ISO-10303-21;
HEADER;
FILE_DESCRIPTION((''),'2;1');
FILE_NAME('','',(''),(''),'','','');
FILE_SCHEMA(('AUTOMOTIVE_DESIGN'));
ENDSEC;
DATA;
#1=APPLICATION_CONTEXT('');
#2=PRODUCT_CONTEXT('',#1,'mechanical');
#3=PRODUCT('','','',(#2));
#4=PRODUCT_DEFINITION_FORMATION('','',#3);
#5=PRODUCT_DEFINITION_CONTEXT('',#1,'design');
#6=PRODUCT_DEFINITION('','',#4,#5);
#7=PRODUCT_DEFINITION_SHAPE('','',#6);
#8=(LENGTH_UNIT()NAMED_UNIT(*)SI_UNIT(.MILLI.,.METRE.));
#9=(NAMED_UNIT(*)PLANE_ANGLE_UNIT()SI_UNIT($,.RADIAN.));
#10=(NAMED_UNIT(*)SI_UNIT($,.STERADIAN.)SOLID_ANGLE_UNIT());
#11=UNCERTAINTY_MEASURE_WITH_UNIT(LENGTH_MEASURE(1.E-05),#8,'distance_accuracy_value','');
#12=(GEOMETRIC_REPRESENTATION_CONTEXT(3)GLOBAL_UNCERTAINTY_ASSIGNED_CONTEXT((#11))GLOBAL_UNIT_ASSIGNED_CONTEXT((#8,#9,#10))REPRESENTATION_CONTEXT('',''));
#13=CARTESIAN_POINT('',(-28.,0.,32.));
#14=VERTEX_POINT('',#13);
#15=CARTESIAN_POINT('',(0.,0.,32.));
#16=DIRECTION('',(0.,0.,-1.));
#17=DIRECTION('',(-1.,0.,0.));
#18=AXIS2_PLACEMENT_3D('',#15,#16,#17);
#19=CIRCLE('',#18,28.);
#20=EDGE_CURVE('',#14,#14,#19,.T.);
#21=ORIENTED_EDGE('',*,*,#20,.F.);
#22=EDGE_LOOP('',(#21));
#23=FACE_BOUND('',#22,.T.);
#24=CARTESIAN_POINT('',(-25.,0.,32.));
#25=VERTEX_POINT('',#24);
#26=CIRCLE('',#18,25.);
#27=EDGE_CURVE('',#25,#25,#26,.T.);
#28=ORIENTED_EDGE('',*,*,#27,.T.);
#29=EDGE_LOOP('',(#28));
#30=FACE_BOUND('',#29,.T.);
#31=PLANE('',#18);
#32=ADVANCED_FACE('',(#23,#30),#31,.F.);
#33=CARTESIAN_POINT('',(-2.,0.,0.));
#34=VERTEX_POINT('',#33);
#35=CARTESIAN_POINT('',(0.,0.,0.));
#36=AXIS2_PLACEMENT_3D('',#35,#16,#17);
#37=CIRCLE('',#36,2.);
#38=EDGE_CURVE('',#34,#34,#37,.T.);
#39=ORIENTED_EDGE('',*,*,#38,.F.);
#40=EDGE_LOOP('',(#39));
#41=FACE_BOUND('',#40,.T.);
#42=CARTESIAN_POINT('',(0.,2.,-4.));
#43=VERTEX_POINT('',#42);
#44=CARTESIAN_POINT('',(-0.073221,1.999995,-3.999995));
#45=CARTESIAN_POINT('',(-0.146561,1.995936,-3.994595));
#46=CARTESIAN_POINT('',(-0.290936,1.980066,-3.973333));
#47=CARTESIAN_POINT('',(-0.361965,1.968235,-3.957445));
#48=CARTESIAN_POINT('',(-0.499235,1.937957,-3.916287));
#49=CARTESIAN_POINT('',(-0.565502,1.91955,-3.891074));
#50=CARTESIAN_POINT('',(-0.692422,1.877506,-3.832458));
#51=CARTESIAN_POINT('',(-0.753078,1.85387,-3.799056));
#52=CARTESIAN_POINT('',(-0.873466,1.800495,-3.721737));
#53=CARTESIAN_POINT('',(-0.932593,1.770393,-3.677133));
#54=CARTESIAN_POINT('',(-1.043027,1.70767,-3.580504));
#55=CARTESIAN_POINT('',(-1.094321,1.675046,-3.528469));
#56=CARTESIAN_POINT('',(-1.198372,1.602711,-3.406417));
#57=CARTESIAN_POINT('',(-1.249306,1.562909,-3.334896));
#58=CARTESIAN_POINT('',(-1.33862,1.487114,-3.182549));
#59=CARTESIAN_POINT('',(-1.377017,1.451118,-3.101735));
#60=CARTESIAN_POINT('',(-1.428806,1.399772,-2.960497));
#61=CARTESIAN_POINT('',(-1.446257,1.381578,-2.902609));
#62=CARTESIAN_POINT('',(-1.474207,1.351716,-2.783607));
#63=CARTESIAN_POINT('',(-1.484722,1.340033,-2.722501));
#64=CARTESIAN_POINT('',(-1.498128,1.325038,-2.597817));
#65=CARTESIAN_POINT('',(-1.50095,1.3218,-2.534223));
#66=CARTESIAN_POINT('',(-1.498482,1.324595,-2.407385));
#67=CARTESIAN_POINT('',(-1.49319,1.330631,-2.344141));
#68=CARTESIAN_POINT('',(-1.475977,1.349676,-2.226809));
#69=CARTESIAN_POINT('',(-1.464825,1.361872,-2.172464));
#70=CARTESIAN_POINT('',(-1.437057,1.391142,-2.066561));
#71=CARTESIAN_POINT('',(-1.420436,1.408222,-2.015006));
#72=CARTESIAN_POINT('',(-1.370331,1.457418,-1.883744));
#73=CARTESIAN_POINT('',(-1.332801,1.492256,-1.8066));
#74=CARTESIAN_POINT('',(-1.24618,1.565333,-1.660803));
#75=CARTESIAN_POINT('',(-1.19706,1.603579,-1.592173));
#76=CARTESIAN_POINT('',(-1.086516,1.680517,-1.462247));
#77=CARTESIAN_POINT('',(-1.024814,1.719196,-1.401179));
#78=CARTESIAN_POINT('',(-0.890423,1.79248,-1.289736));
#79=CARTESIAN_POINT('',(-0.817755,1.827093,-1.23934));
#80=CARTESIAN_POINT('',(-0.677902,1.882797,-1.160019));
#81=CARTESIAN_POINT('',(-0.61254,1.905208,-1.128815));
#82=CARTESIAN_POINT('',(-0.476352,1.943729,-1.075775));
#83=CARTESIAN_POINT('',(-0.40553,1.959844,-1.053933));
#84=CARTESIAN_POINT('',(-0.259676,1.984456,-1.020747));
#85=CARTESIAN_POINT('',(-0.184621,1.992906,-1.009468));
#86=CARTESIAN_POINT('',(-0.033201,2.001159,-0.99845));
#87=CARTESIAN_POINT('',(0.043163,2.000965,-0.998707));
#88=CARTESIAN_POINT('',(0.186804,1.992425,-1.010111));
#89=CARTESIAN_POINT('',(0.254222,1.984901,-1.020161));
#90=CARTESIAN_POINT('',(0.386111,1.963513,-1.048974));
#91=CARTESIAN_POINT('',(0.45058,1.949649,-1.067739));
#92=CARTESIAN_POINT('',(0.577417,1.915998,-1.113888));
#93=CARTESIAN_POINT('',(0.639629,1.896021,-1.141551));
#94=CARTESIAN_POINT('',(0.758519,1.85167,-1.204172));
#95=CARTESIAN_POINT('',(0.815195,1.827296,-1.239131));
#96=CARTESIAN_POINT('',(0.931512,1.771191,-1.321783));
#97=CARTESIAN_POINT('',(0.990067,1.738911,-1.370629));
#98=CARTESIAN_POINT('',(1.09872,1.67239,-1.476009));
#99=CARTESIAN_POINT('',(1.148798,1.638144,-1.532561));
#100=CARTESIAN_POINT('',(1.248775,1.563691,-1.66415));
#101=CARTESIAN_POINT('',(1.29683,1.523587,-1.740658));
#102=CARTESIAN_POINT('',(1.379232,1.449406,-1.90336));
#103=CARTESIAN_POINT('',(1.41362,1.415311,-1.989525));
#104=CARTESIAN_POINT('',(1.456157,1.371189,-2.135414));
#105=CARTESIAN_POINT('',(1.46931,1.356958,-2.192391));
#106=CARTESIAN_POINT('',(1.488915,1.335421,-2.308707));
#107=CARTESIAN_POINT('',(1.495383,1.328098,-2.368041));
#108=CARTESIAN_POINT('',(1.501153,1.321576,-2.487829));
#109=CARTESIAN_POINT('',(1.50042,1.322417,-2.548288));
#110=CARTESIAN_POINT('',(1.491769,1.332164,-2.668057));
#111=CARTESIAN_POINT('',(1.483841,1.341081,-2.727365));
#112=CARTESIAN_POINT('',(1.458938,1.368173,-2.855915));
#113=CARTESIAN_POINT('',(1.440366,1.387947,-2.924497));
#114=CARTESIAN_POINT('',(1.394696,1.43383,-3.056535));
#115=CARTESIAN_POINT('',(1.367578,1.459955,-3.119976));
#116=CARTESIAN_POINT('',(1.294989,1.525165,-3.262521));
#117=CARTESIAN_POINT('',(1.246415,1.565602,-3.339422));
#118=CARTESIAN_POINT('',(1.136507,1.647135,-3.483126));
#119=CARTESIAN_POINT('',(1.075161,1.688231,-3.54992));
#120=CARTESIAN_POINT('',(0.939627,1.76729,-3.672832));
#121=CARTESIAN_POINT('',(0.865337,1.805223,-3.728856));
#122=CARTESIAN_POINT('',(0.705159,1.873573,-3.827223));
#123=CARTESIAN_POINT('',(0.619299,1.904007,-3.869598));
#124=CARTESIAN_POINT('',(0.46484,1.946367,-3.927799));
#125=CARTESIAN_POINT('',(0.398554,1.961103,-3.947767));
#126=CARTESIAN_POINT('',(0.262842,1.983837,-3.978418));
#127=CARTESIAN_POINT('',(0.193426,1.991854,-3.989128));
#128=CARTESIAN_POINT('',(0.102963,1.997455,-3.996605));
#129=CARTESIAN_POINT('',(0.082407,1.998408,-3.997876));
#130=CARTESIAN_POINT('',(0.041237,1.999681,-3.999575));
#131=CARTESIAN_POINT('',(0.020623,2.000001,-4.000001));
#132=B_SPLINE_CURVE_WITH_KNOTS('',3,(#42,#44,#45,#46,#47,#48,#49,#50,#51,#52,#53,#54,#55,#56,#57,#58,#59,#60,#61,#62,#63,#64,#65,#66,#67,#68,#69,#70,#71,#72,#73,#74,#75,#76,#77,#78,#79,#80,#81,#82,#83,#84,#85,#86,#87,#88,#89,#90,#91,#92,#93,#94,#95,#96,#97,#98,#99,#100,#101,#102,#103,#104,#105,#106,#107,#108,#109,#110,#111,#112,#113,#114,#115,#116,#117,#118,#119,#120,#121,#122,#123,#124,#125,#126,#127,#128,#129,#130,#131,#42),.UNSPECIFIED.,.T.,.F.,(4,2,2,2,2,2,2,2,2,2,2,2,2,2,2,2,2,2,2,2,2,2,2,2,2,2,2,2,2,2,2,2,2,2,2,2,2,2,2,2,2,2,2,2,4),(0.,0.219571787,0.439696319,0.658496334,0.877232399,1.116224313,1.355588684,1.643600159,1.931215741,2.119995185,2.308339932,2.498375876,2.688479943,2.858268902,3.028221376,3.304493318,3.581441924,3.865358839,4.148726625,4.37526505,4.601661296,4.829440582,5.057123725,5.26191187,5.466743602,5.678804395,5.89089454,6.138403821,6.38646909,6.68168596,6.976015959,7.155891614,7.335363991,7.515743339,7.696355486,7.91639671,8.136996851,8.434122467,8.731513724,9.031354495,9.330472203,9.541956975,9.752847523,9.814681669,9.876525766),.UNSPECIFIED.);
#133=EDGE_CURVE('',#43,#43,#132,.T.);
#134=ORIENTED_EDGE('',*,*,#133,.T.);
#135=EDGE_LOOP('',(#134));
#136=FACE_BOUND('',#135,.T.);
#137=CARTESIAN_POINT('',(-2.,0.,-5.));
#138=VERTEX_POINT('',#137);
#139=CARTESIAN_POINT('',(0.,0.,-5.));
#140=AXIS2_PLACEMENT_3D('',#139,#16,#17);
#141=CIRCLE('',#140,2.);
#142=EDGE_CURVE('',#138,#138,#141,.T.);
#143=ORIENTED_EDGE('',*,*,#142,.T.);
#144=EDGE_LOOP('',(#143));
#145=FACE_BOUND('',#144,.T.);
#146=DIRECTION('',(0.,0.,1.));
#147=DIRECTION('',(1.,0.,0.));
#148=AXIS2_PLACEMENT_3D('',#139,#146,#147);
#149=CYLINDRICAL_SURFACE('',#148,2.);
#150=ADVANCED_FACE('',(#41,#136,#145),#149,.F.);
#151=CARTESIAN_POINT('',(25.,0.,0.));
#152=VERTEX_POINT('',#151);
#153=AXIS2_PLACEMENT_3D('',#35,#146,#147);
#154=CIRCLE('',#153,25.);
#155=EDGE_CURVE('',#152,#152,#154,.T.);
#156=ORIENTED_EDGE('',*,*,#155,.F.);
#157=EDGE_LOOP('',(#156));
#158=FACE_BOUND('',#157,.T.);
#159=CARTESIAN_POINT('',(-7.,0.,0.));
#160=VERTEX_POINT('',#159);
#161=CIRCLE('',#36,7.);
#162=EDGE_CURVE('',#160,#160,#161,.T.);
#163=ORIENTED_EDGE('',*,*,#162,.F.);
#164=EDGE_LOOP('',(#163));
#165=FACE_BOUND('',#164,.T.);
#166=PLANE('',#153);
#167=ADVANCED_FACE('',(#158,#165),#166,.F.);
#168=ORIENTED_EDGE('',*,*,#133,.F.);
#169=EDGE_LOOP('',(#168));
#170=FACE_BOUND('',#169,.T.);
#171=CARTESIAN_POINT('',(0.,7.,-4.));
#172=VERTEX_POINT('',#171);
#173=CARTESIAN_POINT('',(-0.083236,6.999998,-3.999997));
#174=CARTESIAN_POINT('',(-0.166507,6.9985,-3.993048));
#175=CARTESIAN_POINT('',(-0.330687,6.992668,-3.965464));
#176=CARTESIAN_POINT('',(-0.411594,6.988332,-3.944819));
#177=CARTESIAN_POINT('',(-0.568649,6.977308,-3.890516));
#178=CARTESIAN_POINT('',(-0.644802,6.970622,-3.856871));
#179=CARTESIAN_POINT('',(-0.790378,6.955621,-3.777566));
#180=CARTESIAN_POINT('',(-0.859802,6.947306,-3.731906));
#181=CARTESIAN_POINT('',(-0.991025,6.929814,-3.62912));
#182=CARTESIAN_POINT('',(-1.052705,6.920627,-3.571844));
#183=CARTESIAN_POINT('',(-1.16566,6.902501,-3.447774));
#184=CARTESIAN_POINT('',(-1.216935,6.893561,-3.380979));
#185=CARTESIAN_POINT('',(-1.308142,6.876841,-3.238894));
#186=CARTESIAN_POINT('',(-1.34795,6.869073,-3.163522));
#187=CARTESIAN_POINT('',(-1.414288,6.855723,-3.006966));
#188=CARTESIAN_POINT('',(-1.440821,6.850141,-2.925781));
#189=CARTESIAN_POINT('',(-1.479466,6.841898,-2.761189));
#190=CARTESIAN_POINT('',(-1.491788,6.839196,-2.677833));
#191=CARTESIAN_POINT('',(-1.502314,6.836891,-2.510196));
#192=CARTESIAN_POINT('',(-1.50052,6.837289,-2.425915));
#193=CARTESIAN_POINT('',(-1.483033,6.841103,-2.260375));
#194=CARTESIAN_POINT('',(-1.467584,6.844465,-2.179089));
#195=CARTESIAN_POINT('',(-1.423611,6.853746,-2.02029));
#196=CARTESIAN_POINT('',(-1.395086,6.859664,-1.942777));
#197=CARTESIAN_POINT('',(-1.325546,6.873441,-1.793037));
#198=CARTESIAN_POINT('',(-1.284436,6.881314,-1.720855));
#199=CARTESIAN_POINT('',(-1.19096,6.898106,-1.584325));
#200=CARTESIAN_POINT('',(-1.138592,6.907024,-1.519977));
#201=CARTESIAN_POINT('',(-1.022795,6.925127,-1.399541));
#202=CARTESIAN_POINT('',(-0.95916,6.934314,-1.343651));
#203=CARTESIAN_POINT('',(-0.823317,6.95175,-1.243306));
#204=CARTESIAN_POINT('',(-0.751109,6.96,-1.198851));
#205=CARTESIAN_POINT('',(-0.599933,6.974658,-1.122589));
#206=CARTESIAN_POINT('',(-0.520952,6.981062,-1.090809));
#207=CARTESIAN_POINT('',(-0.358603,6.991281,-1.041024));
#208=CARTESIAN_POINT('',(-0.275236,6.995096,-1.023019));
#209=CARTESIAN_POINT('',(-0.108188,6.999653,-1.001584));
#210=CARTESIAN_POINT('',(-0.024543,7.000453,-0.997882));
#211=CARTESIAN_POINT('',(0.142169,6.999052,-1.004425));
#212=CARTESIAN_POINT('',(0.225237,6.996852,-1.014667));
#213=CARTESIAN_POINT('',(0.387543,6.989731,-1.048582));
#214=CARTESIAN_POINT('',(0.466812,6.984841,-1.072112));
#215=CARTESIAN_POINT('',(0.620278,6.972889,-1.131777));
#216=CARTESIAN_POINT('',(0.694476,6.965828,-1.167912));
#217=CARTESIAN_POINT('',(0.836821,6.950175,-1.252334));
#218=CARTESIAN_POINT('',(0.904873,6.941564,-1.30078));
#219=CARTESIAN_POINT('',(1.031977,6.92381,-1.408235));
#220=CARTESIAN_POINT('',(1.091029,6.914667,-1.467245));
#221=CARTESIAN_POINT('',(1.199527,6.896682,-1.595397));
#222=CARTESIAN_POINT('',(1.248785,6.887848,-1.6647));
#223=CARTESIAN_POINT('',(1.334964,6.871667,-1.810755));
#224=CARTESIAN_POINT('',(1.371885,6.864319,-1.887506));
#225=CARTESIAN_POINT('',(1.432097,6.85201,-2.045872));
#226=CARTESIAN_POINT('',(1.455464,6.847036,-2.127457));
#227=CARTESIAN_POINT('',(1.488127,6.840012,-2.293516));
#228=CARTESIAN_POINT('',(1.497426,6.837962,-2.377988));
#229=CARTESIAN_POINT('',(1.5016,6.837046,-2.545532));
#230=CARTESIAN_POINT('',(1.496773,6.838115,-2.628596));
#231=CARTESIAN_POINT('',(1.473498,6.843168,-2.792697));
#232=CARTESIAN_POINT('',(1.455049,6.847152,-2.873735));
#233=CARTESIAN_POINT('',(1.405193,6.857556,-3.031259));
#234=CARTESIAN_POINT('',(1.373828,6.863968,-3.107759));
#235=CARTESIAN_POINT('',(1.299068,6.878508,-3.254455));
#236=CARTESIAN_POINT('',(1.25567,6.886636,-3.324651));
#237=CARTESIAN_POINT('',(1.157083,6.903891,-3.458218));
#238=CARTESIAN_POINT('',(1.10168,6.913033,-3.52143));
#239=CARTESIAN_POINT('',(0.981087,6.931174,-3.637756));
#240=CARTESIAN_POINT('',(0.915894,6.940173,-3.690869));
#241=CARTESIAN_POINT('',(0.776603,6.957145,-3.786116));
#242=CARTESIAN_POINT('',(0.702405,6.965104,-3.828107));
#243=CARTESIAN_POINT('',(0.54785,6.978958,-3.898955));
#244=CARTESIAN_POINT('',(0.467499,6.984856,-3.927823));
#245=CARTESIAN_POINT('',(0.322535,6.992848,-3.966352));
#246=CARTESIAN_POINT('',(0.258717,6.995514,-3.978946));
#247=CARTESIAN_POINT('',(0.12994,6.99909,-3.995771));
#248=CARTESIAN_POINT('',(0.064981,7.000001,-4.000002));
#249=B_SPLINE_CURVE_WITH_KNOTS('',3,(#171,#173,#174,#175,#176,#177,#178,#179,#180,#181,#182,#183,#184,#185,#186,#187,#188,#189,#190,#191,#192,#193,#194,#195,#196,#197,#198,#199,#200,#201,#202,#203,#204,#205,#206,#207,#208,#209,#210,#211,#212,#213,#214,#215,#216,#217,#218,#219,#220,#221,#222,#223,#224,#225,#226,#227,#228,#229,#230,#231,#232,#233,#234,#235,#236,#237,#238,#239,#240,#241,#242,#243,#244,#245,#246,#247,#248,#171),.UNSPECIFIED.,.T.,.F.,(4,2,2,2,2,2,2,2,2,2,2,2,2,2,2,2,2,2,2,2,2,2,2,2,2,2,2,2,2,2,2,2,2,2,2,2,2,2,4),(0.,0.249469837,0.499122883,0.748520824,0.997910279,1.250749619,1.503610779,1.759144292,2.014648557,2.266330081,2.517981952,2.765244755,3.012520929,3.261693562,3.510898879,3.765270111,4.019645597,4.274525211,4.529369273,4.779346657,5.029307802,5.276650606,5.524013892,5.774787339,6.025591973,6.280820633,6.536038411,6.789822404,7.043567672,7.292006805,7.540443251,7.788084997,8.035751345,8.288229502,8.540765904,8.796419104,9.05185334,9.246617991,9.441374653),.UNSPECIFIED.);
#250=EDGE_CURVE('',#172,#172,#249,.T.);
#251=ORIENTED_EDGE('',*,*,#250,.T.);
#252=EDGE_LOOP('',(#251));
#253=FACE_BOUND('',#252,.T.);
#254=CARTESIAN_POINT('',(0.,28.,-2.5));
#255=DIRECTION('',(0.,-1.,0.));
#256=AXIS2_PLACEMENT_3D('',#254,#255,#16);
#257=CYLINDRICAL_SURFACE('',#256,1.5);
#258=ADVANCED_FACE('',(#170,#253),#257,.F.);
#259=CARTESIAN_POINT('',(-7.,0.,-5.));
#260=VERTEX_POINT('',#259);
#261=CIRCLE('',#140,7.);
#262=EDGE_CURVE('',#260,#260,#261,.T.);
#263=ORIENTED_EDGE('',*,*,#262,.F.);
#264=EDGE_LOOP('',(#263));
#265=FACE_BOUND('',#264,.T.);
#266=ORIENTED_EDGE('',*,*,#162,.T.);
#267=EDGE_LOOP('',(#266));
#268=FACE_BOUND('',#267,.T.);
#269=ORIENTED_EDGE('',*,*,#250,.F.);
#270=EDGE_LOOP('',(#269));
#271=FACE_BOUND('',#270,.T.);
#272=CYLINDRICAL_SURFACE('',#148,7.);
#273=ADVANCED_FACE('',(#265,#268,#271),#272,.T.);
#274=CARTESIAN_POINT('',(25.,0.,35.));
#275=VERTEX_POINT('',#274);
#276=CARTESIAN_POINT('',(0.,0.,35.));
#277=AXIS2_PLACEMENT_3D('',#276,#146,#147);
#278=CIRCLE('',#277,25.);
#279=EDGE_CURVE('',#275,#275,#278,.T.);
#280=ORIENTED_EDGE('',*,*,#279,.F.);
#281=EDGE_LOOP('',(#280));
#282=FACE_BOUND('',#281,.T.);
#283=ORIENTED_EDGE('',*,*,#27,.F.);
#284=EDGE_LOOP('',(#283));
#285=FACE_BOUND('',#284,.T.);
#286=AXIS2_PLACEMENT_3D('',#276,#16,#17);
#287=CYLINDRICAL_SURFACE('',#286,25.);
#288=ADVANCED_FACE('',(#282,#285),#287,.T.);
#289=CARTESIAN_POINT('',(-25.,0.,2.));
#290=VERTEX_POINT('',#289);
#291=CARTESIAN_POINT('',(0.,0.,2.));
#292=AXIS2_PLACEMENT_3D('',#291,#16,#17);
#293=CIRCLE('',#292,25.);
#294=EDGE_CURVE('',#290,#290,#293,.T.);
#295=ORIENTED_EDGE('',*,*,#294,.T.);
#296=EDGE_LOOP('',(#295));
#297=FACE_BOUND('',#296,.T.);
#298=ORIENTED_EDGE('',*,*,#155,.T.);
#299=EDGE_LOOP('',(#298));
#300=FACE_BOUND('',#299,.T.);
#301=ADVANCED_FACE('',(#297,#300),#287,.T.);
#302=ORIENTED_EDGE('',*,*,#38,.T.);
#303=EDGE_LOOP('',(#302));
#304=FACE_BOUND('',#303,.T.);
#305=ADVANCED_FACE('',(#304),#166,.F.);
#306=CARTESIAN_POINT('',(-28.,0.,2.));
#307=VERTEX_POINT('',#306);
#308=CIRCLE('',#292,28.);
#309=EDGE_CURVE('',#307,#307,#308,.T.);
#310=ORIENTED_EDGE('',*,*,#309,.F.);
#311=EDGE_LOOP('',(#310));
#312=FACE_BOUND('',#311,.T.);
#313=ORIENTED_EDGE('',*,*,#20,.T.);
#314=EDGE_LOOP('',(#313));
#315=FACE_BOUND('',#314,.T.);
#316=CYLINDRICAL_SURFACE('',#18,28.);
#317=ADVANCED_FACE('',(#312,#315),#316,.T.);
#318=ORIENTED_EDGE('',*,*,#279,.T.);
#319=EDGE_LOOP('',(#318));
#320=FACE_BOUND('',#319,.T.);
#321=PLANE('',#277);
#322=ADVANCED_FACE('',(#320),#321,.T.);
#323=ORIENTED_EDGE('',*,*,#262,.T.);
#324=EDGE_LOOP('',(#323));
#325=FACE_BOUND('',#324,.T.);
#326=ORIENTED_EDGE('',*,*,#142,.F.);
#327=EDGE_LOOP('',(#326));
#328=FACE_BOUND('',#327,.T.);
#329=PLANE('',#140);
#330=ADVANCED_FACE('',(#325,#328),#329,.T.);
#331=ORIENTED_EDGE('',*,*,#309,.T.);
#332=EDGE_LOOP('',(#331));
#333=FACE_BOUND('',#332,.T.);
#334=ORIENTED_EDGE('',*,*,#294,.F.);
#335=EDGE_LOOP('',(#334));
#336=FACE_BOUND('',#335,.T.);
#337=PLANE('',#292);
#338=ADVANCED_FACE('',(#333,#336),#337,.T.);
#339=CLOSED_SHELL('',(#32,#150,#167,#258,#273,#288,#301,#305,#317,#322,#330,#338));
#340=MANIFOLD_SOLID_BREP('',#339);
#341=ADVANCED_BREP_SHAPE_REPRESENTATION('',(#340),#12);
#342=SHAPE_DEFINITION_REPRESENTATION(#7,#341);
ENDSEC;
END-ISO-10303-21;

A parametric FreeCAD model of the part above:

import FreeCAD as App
import Part
import Sketcher
Q = App.Units.Quantity

doc = App.newDocument("Part")
body = doc.addObject("PartDesign::Body", "Body")

sketch1 = body.newObject("Sketcher::SketchObject", "Sketch")
sketch1.AttachmentSupport = (doc.getObject("XY_Plane"), [""])
sketch1.MapMode = "FlatFace"
sketch1.addGeometry(Part.Circle(App.Vector(0, 0, 0), App.Vector(0, 0, 1), 25), False)
sketch1.addConstraint(Sketcher.Constraint("Coincident", 0, 3, -1, 1))
sketch1.addConstraint(Sketcher.Constraint("Diameter", 0, Q("50 mm")))
pad1 = body.newObject("PartDesign::Pad", "Pad")
pad1.Profile = sketch1
pad1.Length = 35

sketch2 = body.newObject("Sketcher::SketchObject", "Sketch001")
sketch2.AttachmentSupport = (doc.getObject("XY_Plane"), [""])
sketch2.MapMode = "FlatFace"
sketch2.AttachmentOffset = App.Placement(App.Vector(0, 0, 2), App.Rotation())
sketch2.addGeometry(Part.Circle(App.Vector(0, 0, 0), App.Vector(0, 0, 1), 28), False)
sketch2.addGeometry(Part.Circle(App.Vector(0, 0, 0), App.Vector(0, 0, 1), 25), False)
sketch2.addConstraint(Sketcher.Constraint("Coincident", 0, 3, -1, 1))
sketch2.addConstraint(Sketcher.Constraint("Coincident", 1, 3, -1, 1))
sketch2.addConstraint(Sketcher.Constraint("Diameter", 0, Q("56 mm")))
sketch2.addConstraint(Sketcher.Constraint("Diameter", 1, Q("50 mm")))
pad2 = body.newObject("PartDesign::Pad", "Pad001")
pad2.Profile = sketch2
pad2.Length = 30

sketch3 = body.newObject("Sketcher::SketchObject", "Sketch002")
sketch3.AttachmentSupport = (doc.getObject("XY_Plane"), [""])
sketch3.MapMode = "FlatFace"
sketch3.addGeometry(Part.Circle(App.Vector(0, 0, 0), App.Vector(0, 0, 1), 7), False)
sketch3.addGeometry(Part.Circle(App.Vector(0, 0, 0), App.Vector(0, 0, 1), 2), False)
sketch3.addConstraint(Sketcher.Constraint("Coincident", 0, 3, -1, 1))
sketch3.addConstraint(Sketcher.Constraint("Coincident", 1, 3, -1, 1))
sketch3.addConstraint(Sketcher.Constraint("Diameter", 0, Q("14 mm")))
sketch3.addConstraint(Sketcher.Constraint("Diameter", 1, Q("4 mm")))
pad3 = body.newObject("PartDesign::Pad", "Pad002")
pad3.Profile = sketch3
pad3.Length = 5
pad3.Reversed = True

sketch4 = body.newObject("Sketcher::SketchObject", "Sketch003")
sketch4.AttachmentSupport = (doc.getObject("XZ_Plane"), [""])
sketch4.MapMode = "FlatFace"
sketch4.addGeometry(Part.Circle(App.Vector(0, -2.5, 0), App.Vector(0, 0, 1), 1.5), False)
sketch4.addConstraint(Sketcher.Constraint("PointOnObject", 0, 3, -2))
sketch4.addConstraint(Sketcher.Constraint("Diameter", 0, Q("3 mm")))
sketch4.addConstraint(Sketcher.Constraint("DistanceY", 0, 3, -1, 1, Q("2.5 mm")))
pocket1 = body.newObject("PartDesign::Pocket", "Pocket")
pocket1.Profile = sketch4
pocket1.Type = "ThroughAll"

doc.recompute()
